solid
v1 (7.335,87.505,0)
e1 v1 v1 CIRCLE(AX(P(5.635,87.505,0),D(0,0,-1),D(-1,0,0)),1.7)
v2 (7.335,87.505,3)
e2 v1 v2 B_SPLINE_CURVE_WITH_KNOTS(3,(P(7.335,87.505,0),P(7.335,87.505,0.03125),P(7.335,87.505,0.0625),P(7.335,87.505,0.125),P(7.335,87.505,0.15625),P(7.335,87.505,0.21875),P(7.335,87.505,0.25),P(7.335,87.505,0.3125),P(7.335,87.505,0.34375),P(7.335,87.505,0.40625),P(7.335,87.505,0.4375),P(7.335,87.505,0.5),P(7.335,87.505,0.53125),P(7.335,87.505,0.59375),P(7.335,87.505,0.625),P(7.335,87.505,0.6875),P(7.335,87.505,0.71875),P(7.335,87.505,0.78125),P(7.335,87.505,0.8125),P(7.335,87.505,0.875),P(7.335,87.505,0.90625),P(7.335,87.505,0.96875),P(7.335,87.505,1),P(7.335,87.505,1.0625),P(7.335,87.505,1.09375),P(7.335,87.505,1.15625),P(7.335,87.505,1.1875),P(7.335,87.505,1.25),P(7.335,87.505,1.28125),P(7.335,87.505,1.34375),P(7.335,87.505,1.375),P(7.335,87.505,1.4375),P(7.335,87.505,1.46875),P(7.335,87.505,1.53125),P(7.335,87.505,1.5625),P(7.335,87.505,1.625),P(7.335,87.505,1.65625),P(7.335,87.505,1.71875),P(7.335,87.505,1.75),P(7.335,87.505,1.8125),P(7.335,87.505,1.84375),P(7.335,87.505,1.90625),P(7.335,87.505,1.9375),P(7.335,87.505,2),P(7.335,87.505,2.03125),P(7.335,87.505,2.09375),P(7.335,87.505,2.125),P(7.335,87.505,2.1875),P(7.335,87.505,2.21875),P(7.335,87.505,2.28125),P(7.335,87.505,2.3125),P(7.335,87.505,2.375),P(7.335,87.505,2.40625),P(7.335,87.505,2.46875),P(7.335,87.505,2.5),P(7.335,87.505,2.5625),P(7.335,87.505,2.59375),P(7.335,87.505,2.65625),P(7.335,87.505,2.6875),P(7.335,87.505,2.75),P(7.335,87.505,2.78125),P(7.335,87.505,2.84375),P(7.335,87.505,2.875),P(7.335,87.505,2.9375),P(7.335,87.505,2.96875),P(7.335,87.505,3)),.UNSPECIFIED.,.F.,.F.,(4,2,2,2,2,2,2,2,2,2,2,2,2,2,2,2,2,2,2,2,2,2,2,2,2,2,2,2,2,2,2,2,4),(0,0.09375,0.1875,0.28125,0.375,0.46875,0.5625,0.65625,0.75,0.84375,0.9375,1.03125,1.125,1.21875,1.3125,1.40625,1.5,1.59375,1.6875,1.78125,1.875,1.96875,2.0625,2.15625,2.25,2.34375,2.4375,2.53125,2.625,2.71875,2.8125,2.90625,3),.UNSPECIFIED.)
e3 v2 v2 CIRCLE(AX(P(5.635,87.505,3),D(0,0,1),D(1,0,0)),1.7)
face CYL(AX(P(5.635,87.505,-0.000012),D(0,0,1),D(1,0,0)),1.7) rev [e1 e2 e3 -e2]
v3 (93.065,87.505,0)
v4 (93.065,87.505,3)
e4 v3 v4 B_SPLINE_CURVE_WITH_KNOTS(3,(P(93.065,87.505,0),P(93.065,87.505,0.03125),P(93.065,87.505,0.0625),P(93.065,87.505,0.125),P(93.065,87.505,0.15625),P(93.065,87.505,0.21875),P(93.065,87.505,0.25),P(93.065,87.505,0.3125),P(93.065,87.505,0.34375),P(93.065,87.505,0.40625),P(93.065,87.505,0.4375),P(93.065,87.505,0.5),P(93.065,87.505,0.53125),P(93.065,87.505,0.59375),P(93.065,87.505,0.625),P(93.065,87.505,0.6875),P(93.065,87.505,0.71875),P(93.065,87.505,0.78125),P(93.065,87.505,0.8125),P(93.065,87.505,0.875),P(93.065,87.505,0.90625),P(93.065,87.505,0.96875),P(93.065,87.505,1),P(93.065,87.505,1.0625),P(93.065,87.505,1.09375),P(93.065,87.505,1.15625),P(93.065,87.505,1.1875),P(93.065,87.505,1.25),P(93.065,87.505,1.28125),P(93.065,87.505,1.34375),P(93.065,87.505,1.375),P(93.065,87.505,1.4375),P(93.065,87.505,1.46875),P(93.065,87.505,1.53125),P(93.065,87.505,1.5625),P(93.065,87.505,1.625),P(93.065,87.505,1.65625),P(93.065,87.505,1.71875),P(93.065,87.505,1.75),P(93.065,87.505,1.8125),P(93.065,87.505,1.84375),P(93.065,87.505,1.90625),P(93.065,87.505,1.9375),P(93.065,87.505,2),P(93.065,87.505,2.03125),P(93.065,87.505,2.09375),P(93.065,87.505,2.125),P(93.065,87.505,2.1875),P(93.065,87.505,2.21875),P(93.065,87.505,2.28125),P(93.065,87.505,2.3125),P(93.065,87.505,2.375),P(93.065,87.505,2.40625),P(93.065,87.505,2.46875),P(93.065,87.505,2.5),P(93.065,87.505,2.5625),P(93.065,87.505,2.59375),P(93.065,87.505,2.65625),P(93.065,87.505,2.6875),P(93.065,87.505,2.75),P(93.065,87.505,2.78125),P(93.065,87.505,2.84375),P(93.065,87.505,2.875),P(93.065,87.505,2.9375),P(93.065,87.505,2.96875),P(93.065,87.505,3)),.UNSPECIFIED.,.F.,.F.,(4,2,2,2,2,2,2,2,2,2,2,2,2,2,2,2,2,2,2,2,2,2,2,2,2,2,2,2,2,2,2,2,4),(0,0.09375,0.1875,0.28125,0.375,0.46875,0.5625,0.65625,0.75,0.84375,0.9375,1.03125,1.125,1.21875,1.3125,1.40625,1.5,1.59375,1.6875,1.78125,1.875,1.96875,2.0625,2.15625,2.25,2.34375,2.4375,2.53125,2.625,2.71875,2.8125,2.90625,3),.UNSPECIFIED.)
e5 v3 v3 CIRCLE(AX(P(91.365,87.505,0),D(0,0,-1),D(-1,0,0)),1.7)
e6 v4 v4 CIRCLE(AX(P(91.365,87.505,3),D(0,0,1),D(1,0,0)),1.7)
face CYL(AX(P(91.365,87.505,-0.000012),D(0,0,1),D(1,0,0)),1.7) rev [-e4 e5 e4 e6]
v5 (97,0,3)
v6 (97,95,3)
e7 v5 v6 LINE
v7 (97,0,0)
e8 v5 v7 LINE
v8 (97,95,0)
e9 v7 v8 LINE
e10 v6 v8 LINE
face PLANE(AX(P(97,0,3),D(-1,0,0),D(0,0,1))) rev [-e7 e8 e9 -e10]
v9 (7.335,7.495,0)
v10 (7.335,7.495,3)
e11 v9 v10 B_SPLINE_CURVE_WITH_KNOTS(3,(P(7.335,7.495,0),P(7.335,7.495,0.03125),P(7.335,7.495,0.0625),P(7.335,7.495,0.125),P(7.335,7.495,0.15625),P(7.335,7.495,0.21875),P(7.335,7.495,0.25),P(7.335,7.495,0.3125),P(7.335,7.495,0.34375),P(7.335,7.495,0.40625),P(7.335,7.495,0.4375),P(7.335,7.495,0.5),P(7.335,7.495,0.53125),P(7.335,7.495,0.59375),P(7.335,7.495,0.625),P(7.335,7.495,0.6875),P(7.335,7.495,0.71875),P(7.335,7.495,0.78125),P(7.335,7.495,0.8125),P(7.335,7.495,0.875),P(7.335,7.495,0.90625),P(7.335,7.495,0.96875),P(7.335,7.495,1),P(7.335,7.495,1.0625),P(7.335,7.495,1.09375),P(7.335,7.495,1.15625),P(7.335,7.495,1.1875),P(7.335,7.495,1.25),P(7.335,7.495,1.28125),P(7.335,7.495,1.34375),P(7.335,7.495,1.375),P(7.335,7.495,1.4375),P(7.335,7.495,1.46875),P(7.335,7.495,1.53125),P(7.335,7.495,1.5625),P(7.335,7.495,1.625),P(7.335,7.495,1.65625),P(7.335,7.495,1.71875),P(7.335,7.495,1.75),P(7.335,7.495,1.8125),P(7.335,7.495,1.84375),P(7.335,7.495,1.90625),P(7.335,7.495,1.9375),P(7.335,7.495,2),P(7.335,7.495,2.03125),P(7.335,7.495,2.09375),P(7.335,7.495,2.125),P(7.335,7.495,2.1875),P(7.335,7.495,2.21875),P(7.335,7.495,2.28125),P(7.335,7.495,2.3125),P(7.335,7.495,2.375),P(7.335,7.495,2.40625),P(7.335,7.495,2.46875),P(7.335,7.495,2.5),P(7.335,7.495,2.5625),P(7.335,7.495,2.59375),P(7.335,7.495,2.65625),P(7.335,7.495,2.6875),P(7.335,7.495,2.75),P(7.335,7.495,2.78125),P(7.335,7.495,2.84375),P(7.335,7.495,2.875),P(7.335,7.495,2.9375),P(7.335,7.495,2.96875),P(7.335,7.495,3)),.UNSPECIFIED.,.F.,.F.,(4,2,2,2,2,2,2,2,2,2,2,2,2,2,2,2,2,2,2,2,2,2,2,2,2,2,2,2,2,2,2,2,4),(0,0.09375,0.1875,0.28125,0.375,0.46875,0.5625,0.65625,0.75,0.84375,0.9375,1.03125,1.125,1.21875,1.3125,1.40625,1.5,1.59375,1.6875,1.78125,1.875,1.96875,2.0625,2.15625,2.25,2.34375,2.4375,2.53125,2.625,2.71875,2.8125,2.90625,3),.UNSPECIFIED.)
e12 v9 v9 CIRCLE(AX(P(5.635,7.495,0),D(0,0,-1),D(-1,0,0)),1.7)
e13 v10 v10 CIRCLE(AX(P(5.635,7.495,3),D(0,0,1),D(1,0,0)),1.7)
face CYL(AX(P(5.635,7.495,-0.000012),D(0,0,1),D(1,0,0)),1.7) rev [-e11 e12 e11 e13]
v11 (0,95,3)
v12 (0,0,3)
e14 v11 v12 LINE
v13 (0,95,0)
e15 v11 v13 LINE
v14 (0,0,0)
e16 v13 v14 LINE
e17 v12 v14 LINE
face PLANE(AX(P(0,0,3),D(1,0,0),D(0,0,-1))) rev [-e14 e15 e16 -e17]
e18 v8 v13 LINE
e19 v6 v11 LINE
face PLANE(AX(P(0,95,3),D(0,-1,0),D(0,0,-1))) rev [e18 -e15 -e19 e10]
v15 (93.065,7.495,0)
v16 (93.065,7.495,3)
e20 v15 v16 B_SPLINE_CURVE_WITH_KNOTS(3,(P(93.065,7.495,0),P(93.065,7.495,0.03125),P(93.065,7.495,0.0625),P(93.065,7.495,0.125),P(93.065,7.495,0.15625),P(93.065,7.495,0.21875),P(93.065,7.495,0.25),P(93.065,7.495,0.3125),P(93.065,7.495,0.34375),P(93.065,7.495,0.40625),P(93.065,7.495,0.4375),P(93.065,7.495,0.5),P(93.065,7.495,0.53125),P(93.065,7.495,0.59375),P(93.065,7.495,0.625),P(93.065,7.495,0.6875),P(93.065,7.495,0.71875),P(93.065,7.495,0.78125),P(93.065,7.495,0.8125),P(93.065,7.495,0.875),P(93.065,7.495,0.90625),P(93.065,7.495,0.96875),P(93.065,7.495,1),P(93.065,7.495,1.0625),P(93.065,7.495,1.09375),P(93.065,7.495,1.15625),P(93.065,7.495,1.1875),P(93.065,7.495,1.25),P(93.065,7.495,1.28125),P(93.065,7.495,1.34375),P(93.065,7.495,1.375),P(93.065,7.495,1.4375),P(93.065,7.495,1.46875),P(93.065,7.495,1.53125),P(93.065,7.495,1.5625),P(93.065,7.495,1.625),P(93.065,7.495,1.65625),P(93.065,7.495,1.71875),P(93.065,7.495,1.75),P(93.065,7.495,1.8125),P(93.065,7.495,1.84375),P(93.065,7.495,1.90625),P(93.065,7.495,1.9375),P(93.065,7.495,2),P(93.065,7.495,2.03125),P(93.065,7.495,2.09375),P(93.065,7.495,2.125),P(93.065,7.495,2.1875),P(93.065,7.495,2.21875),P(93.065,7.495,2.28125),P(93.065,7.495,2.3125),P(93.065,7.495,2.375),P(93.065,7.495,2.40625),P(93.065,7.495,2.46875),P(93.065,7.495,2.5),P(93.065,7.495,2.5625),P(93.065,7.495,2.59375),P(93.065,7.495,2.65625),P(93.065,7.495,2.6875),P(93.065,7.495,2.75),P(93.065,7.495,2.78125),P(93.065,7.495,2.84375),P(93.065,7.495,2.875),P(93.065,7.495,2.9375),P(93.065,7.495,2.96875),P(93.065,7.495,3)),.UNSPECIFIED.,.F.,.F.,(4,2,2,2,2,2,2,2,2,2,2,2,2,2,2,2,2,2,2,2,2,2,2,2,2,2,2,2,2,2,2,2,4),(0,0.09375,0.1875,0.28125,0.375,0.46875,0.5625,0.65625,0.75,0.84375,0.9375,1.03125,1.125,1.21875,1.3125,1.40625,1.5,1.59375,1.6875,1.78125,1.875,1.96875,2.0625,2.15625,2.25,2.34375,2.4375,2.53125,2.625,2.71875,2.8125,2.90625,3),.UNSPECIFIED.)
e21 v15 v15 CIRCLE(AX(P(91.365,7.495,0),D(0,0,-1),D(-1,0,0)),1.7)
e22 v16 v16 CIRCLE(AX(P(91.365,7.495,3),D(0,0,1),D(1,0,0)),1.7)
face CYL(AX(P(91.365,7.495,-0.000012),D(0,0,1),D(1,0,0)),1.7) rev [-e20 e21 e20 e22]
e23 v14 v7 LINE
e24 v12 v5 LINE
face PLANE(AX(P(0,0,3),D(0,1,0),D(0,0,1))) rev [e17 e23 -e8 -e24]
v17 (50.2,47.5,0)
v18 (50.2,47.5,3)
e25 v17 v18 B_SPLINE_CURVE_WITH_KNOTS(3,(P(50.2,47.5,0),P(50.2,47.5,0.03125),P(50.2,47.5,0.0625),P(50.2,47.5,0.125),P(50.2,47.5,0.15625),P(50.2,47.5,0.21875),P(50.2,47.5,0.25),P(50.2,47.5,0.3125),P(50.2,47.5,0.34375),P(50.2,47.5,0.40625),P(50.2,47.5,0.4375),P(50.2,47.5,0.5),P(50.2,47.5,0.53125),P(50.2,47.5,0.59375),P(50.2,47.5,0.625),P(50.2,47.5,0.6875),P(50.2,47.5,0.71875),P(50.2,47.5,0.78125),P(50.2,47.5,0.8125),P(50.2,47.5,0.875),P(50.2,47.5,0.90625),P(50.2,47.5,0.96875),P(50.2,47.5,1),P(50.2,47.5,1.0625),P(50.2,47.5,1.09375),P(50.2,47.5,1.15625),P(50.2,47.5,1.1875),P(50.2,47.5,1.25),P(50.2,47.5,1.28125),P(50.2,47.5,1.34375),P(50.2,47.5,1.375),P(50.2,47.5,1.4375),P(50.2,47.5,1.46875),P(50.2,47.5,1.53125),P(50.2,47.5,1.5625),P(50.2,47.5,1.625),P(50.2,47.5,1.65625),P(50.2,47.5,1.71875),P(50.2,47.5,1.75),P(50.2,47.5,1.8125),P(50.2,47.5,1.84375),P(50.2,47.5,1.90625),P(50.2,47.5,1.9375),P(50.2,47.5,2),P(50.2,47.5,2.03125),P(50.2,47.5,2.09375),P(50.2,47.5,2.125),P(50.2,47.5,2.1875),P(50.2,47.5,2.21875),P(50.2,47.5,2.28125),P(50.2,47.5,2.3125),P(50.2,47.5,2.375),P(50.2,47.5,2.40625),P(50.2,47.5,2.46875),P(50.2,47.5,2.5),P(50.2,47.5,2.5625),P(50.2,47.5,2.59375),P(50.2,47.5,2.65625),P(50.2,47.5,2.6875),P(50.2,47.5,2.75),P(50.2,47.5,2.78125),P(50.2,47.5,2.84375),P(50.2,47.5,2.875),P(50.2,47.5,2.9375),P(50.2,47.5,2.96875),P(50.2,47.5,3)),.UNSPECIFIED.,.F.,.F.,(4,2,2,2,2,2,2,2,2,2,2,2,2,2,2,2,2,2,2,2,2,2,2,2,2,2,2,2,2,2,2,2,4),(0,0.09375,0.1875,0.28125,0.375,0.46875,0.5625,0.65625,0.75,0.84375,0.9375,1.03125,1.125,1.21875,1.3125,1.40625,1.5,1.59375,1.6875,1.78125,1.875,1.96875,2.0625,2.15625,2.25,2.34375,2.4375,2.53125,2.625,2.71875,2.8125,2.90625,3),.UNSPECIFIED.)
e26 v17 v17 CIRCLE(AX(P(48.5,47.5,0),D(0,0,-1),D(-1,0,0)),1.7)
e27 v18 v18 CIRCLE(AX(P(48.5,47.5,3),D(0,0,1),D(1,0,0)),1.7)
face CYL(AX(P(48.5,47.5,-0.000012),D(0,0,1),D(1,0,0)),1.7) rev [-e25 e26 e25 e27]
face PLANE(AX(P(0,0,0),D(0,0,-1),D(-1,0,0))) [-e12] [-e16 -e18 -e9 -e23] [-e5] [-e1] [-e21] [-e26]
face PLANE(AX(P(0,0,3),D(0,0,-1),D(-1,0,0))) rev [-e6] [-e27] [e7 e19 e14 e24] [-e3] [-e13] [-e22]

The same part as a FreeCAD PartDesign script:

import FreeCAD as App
import Part
import Sketcher

V = App.Vector

doc = App.newDocument("Part")
body = doc.addObject("PartDesign::Body", "Body")

# Sketch on XY plane
sketch1 = body.newObject("Sketcher::SketchObject", "Sketch")
sketch1.AttachmentSupport = (doc.getObject("XY_Plane"), [""])
sketch1.MapMode = "FlatFace"
sketch1.addGeometry([
    Part.LineSegment(V(0, 95, 0), V(0, 0, 0)),
    Part.LineSegment(V(0, 0, 0), V(97, 0, 0)),
    Part.LineSegment(V(97, 0, 0), V(97, 95, 0)),
    Part.LineSegment(V(97, 95, 0), V(0, 95, 0)),
], False)
sketch1.addConstraint([
    Sketcher.Constraint("Coincident", 0, 2, 1, 1),
    Sketcher.Constraint("Coincident", 1, 2, 2, 1),
    Sketcher.Constraint("Coincident", 2, 2, 3, 1),
    Sketcher.Constraint("Coincident", 3, 2, 0, 1),
    Sketcher.Constraint("Vertical", 0),
    Sketcher.Constraint("Horizontal", 1),
    Sketcher.Constraint("Vertical", 2),
    Sketcher.Constraint("Horizontal", 3),
    Sketcher.Constraint("Coincident", 0, 2, -1, 1),
    Sketcher.Constraint("DistanceX", 1, 1, 1, 2, 97.0),
    Sketcher.Constraint("DistanceY", 0, 2, 0, 1, 95.0),
])
pad1 = body.newObject("PartDesign::Pad", "Pad")
pad1.Profile = sketch1
pad1.Length = 3

# Sketch on XY plane
sketch2 = body.newObject("Sketcher::SketchObject", "Sketch001")
sketch2.AttachmentSupport = (doc.getObject("XY_Plane"), [""])
sketch2.MapMode = "FlatFace"
sketch2.addGeometry([
    Part.Circle(V(5.635, 7.495, 0), V(0, 0, 1), 1.7),  # 0
    Part.Circle(V(91.365, 7.495, 0), V(0, 0, 1), 1.7),  # 1
    Part.Circle(V(5.635, 87.505, 0), V(0, 0, 1), 1.7),  # 2
    Part.Circle(V(91.365, 87.505, 0), V(0, 0, 1), 1.7),  # 3
    Part.Circle(V(48.5, 47.5, 0), V(0, 0, 1), 1.7),  # 4
], False)
sketch2.addConstraint([
    Sketcher.Constraint("Equal", 0, 1),
    Sketcher.Constraint("Equal", 1, 2),
    Sketcher.Constraint("Equal", 2, 3),
    Sketcher.Constraint("Equal", 3, 4),
    Sketcher.Constraint("Horizontal", 0, 3, 1, 3),
    Sketcher.Constraint("Horizontal", 2, 3, 3, 3),
    Sketcher.Constraint("Vertical", 0, 3, 2, 3),
    Sketcher.Constraint("Vertical", 1, 3, 3, 3),
    Sketcher.Constraint("Diameter", 0, 3.4),
    Sketcher.Constraint("DistanceX", -1, 1, 4, 3, 48.5),
    Sketcher.Constraint("DistanceY", -1, 1, 4, 3, 47.5),
    Sketcher.Constraint("DistanceX", 0, 3, 1, 3, 85.73),
    Sketcher.Constraint("DistanceY", 0, 3, 2, 3, 80.01),
    Sketcher.Constraint("DistanceX", -1, 1, 0, 3, 5.635),
    Sketcher.Constraint("DistanceY", -1, 1, 0, 3, 7.495),
])
pocket1 = body.newObject("PartDesign::Pocket", "Pocket")
pocket1.Profile = sketch2
pocket1.Type = "ThroughAll"
pocket1.Midplane = True

doc.recompute()
